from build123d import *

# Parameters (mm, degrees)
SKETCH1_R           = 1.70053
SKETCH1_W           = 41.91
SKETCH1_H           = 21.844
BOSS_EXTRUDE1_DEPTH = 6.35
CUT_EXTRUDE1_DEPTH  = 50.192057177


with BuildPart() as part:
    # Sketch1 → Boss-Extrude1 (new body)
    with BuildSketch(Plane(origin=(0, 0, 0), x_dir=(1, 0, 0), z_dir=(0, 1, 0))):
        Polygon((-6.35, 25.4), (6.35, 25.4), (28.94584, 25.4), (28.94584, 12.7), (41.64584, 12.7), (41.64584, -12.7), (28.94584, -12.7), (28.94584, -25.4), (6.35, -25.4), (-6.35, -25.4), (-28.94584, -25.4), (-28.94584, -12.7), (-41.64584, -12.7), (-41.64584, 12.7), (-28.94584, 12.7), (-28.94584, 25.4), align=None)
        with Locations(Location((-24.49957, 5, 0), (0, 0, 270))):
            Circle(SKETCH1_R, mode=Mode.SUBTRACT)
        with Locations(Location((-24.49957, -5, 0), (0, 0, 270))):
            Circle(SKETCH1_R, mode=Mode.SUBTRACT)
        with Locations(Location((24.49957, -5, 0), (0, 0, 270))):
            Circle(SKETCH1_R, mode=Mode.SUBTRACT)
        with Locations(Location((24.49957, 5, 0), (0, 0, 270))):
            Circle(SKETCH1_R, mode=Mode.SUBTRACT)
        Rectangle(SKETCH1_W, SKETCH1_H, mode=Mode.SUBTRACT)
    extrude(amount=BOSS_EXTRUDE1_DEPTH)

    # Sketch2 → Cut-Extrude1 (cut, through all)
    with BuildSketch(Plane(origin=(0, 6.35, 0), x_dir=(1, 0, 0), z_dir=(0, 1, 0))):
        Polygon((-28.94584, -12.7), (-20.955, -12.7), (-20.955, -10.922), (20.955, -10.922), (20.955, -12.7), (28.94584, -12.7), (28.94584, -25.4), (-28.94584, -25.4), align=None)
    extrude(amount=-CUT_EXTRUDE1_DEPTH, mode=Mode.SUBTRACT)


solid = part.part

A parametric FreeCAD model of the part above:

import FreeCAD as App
import Part
import Sketcher
from FreeCAD import Vector
Q = App.Units.Quantity


def add_polygon(sketch, points):
    """Adds a closed chain of lines whose ends are joined by coincident constraints."""
    first, n = sketch.GeometryCount, len(points)
    for a, b in zip(points, points[1:] + points[:1]):
        sketch.addGeometry(Part.LineSegment(App.Vector(*a, 0), App.Vector(*b, 0)), False)
    for i in range(n):
        sketch.addConstraint(Sketcher.Constraint("Coincident", first + i, 2, first + (i + 1) % n, 1))

doc = App.newDocument("Part")
body = doc.addObject("PartDesign::Body", "Body")

# Sketch on XZ plane
sketch1 = body.newObject("Sketcher::SketchObject", "Sketch")
sketch1.AttachmentSupport = (doc.getObject("XZ_Plane"), [""])
sketch1.MapMode = "FlatFace"
add_polygon(sketch1, [(28.9, -25.4), (-28.9, -25.4), (-28.9, -12.7), (-41.6, -12.7), (-41.6, 12.7), (-28.9, 12.7), (-28.9, 25.4), (28.9, 25.4), (28.9, 12.7), (41.6, 12.7), (41.6, -12.7), (28.9, -12.7)])  # lines 0-11
sketch1.addGeometry(Part.Circle(Vector(24.5, 5, 0), Vector(0, 0, 1), 1.7), False)  # 12
sketch1.addGeometry(Part.Circle(Vector(-24.5, 5, 0), Vector(0, 0, 1), 1.7), False)  # 13
sketch1.addGeometry(Part.Circle(Vector(24.5, -5, 0), Vector(0, 0, 1), 1.7), False)  # 14
add_polygon(sketch1, [(-21, 10.9), (-21, -10.9), (21, -10.9), (21, 10.9)])  # lines 15-18
sketch1.addGeometry(Part.Circle(Vector(-24.5, -5, 0), Vector(0, 0, 1), 1.7), False)  # 19
sketch1.addConstraint(Sketcher.Constraint("Horizontal", 0))
sketch1.addConstraint(Sketcher.Constraint("Vertical", 1))
sketch1.addConstraint(Sketcher.Constraint("Horizontal", 2))
sketch1.addConstraint(Sketcher.Constraint("Vertical", 3))
sketch1.addConstraint(Sketcher.Constraint("Horizontal", 4))
sketch1.addConstraint(Sketcher.Constraint("Vertical", 5))
sketch1.addConstraint(Sketcher.Constraint("Horizontal", 6))
sketch1.addConstraint(Sketcher.Constraint("Vertical", 7))
sketch1.addConstraint(Sketcher.Constraint("Horizontal", 8))
sketch1.addConstraint(Sketcher.Constraint("Vertical", 9))
sketch1.addConstraint(Sketcher.Constraint("Horizontal", 10))
sketch1.addConstraint(Sketcher.Constraint("Vertical", 11))
sketch1.addConstraint(Sketcher.Constraint("Vertical", 15))
sketch1.addConstraint(Sketcher.Constraint("Horizontal", 16))
sketch1.addConstraint(Sketcher.Constraint("Vertical", 17))
sketch1.addConstraint(Sketcher.Constraint("Horizontal", 18))
sketch1.addConstraint(Sketcher.Constraint("Equal", 12, 13))
sketch1.addConstraint(Sketcher.Constraint("Equal", 13, 14))
sketch1.addConstraint(Sketcher.Constraint("Equal", 14, 19))
sketch1.addConstraint(Sketcher.Constraint("Symmetric", 13, 3, 14, 3, -1, 1))
sketch1.addConstraint(Sketcher.Constraint("Symmetric", 12, 3, 19, 3, -1, 1))
sketch1.addConstraint(Sketcher.Constraint("Symmetric", 0, 2, 6, 2, -1, 1))
sketch1.addConstraint(Sketcher.Constraint("Symmetric", 2, 2, 8, 2, -1, 1))
sketch1.addConstraint(Sketcher.Constraint("Symmetric", 4, 2, 10, 2, -1, 1))
sketch1.addConstraint(Sketcher.Constraint("Symmetric", 15, 2, 17, 2, -1, 1))
sketch1.addConstraint(Sketcher.Constraint("Symmetric", 12, 3, 13, 3, -2))
sketch1.addConstraint(Sketcher.Constraint("Symmetric", 4, 2, 7, 2, -2))
sketch1.addConstraint(Sketcher.Constraint("Equal", 10, 1))
sketch1.addConstraint(Sketcher.Constraint("DistanceY", 3, 1, 3, 2, Q("1 in")))
sketch1.addConstraint(Sketcher.Constraint("DistanceX", 2, 2, 2, 1, Q("0.5 in")))
sketch1.addConstraint(Sketcher.Constraint("Diameter", 12, Q("0.1339 in")))
sketch1.addConstraint(Sketcher.Constraint("DistanceX", 16, 1, 16, 2, Q("1.65 in")))
sketch1.addConstraint(Sketcher.Constraint("DistanceY", 15, 2, 15, 1, Q("0.86 in")))
sketch1.addConstraint(Sketcher.Constraint("DistanceX", 0, 2, 0, 1, Q("2.2792 in")))
sketch1.addConstraint(Sketcher.Constraint("DistanceX", 13, 3, 12, 3, Q("1.9291 in")))
sketch1.addConstraint(Sketcher.Constraint("DistanceY", -1, 1, 12, 3, Q("5 mm")))
pad1 = body.newObject("PartDesign::Pad", "Pad")
pad1.Profile = sketch1
pad1.Length = Q("0.25 in")
pad1.Reversed = True

# Sketch on XZ plane
sketch2 = body.newObject("Sketcher::SketchObject", "Sketch001")
sketch2.AttachmentSupport = (doc.getObject("XZ_Plane"), [""])
sketch2.MapMode = "FlatFace"
sketch2.AttachmentOffset = App.Placement(Vector(0, 0, -0.25 * 25.4), App.Rotation())
add_polygon(sketch2, [(-21, 12.7), (-28.9, 12.7), (-28.9, 25.4), (28.9, 25.4), (28.9, 12.7), (21, 12.7), (21, 10.9), (-21, 10.9)])  # lines 0-7
sketch2.addConstraint(Sketcher.Constraint("Horizontal", 0))
sketch2.addConstraint(Sketcher.Constraint("Vertical", 1))
sketch2.addConstraint(Sketcher.Constraint("Horizontal", 2))
sketch2.addConstraint(Sketcher.Constraint("Vertical", 3))
sketch2.addConstraint(Sketcher.Constraint("Horizontal", 4))
sketch2.addConstraint(Sketcher.Constraint("Vertical", 5))
sketch2.addConstraint(Sketcher.Constraint("Horizontal", 6))
sketch2.addConstraint(Sketcher.Constraint("Vertical", 7))
sketch2.addConstraint(Sketcher.Constraint("Symmetric", 0, 2, 3, 2, -2))
sketch2.addConstraint(Sketcher.Constraint("Equal", 0, 4))
sketch2.addConstraint(Sketcher.Constraint("DistanceY", 1, 1, 1, 2, Q("0.5 in")))
sketch2.addConstraint(Sketcher.Constraint("DistanceY", -1, 1, 1, 2, Q("1 in")))
sketch2.addConstraint(Sketcher.Constraint("DistanceX", 6, 2, 6, 1, Q("1.65 in")))
sketch2.addConstraint(Sketcher.Constraint("DistanceY", 5, 2, 5, 1, Q("0.07 in")))
sketch2.addConstraint(Sketcher.Constraint("DistanceX", 0, 2, 0, 1, Q("0.3146 in")))
pocket1 = body.newObject("PartDesign::Pocket", "Pocket")
pocket1.Profile = sketch2
pocket1.Type = "ThroughAll"
pocket1.Reversed = True

doc.recompute()
